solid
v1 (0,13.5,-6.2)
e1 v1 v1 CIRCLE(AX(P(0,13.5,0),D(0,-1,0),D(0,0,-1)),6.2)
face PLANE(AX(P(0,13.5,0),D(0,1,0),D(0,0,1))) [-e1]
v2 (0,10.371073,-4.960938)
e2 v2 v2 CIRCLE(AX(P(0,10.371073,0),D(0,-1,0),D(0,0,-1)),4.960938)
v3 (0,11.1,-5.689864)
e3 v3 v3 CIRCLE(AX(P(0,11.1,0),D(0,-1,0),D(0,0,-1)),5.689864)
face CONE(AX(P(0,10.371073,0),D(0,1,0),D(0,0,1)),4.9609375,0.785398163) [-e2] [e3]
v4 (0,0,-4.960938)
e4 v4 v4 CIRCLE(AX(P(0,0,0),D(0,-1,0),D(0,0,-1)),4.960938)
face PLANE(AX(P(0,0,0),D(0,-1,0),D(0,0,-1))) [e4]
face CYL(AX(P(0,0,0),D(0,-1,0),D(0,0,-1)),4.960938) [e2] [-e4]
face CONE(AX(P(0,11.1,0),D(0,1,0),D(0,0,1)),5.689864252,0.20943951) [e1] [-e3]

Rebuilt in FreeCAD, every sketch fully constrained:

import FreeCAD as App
import Part
import Sketcher

V = App.Vector
Q = App.Units.Quantity

doc = App.newDocument("Part")
body = doc.addObject("PartDesign::Body", "Body")

sketch1 = body.newObject("Sketcher::SketchObject", "Sketch")
sketch1.AttachmentSupport = (doc.getObject("XY_Plane"), [""])
sketch1.MapMode = "FlatFace"
sketch1.addGeometry([
    Part.LineSegment(V(0, 13.5, 0), V(0, 0, 0)),
    Part.LineSegment(V(0, 0, 0), V(4.960938, 0, 0)),
    Part.LineSegment(V(4.960938, 0, 0), V(4.960938, 10.371073, 0)),
    Part.LineSegment(V(4.960938, 10.371073, 0), V(5.689864, 11.1, 0)),
    Part.LineSegment(V(5.689864, 11.1, 0), V(6.2, 13.5, 0)),
    Part.LineSegment(V(6.2, 13.5, 0), V(0, 13.5, 0)),
], False)
sketch1.addConstraint([
    Sketcher.Constraint("Coincident", 0, 2, 1, 1),
    Sketcher.Constraint("Coincident", 1, 2, 2, 1),
    Sketcher.Constraint("Coincident", 2, 2, 3, 1),
    Sketcher.Constraint("Coincident", 3, 2, 4, 1),
    Sketcher.Constraint("Coincident", 4, 2, 5, 1),
    Sketcher.Constraint("Coincident", 5, 2, 0, 1),
    Sketcher.Constraint("Vertical", 0),
    Sketcher.Constraint("Horizontal", 1),
    Sketcher.Constraint("Vertical", 2),
    Sketcher.Constraint("Horizontal", 5),
    Sketcher.Constraint("Coincident", 0, 2, -1, 1),
    Sketcher.Constraint("Angle", 3, Q("45 deg")),
    Sketcher.Constraint("Angle", 4, Q("78 deg")),
    Sketcher.Constraint("DistanceX", 5, 2, 5, 1, Q("6.2 mm")),
    Sketcher.Constraint("DistanceY", 0, 2, 0, 1, Q("13.5 mm")),
    Sketcher.Constraint("DistanceY", -1, 1, 3, 2, Q("11.1 mm")),
    Sketcher.Constraint("Distance", 3, Q("1.030858 mm")),
])
revolution = body.newObject("PartDesign::Revolution", "Revolution")
revolution.Profile = sketch1
revolution.ReferenceAxis = (sketch1, ["V_Axis"])
revolution.Angle = 360

doc.recompute()
